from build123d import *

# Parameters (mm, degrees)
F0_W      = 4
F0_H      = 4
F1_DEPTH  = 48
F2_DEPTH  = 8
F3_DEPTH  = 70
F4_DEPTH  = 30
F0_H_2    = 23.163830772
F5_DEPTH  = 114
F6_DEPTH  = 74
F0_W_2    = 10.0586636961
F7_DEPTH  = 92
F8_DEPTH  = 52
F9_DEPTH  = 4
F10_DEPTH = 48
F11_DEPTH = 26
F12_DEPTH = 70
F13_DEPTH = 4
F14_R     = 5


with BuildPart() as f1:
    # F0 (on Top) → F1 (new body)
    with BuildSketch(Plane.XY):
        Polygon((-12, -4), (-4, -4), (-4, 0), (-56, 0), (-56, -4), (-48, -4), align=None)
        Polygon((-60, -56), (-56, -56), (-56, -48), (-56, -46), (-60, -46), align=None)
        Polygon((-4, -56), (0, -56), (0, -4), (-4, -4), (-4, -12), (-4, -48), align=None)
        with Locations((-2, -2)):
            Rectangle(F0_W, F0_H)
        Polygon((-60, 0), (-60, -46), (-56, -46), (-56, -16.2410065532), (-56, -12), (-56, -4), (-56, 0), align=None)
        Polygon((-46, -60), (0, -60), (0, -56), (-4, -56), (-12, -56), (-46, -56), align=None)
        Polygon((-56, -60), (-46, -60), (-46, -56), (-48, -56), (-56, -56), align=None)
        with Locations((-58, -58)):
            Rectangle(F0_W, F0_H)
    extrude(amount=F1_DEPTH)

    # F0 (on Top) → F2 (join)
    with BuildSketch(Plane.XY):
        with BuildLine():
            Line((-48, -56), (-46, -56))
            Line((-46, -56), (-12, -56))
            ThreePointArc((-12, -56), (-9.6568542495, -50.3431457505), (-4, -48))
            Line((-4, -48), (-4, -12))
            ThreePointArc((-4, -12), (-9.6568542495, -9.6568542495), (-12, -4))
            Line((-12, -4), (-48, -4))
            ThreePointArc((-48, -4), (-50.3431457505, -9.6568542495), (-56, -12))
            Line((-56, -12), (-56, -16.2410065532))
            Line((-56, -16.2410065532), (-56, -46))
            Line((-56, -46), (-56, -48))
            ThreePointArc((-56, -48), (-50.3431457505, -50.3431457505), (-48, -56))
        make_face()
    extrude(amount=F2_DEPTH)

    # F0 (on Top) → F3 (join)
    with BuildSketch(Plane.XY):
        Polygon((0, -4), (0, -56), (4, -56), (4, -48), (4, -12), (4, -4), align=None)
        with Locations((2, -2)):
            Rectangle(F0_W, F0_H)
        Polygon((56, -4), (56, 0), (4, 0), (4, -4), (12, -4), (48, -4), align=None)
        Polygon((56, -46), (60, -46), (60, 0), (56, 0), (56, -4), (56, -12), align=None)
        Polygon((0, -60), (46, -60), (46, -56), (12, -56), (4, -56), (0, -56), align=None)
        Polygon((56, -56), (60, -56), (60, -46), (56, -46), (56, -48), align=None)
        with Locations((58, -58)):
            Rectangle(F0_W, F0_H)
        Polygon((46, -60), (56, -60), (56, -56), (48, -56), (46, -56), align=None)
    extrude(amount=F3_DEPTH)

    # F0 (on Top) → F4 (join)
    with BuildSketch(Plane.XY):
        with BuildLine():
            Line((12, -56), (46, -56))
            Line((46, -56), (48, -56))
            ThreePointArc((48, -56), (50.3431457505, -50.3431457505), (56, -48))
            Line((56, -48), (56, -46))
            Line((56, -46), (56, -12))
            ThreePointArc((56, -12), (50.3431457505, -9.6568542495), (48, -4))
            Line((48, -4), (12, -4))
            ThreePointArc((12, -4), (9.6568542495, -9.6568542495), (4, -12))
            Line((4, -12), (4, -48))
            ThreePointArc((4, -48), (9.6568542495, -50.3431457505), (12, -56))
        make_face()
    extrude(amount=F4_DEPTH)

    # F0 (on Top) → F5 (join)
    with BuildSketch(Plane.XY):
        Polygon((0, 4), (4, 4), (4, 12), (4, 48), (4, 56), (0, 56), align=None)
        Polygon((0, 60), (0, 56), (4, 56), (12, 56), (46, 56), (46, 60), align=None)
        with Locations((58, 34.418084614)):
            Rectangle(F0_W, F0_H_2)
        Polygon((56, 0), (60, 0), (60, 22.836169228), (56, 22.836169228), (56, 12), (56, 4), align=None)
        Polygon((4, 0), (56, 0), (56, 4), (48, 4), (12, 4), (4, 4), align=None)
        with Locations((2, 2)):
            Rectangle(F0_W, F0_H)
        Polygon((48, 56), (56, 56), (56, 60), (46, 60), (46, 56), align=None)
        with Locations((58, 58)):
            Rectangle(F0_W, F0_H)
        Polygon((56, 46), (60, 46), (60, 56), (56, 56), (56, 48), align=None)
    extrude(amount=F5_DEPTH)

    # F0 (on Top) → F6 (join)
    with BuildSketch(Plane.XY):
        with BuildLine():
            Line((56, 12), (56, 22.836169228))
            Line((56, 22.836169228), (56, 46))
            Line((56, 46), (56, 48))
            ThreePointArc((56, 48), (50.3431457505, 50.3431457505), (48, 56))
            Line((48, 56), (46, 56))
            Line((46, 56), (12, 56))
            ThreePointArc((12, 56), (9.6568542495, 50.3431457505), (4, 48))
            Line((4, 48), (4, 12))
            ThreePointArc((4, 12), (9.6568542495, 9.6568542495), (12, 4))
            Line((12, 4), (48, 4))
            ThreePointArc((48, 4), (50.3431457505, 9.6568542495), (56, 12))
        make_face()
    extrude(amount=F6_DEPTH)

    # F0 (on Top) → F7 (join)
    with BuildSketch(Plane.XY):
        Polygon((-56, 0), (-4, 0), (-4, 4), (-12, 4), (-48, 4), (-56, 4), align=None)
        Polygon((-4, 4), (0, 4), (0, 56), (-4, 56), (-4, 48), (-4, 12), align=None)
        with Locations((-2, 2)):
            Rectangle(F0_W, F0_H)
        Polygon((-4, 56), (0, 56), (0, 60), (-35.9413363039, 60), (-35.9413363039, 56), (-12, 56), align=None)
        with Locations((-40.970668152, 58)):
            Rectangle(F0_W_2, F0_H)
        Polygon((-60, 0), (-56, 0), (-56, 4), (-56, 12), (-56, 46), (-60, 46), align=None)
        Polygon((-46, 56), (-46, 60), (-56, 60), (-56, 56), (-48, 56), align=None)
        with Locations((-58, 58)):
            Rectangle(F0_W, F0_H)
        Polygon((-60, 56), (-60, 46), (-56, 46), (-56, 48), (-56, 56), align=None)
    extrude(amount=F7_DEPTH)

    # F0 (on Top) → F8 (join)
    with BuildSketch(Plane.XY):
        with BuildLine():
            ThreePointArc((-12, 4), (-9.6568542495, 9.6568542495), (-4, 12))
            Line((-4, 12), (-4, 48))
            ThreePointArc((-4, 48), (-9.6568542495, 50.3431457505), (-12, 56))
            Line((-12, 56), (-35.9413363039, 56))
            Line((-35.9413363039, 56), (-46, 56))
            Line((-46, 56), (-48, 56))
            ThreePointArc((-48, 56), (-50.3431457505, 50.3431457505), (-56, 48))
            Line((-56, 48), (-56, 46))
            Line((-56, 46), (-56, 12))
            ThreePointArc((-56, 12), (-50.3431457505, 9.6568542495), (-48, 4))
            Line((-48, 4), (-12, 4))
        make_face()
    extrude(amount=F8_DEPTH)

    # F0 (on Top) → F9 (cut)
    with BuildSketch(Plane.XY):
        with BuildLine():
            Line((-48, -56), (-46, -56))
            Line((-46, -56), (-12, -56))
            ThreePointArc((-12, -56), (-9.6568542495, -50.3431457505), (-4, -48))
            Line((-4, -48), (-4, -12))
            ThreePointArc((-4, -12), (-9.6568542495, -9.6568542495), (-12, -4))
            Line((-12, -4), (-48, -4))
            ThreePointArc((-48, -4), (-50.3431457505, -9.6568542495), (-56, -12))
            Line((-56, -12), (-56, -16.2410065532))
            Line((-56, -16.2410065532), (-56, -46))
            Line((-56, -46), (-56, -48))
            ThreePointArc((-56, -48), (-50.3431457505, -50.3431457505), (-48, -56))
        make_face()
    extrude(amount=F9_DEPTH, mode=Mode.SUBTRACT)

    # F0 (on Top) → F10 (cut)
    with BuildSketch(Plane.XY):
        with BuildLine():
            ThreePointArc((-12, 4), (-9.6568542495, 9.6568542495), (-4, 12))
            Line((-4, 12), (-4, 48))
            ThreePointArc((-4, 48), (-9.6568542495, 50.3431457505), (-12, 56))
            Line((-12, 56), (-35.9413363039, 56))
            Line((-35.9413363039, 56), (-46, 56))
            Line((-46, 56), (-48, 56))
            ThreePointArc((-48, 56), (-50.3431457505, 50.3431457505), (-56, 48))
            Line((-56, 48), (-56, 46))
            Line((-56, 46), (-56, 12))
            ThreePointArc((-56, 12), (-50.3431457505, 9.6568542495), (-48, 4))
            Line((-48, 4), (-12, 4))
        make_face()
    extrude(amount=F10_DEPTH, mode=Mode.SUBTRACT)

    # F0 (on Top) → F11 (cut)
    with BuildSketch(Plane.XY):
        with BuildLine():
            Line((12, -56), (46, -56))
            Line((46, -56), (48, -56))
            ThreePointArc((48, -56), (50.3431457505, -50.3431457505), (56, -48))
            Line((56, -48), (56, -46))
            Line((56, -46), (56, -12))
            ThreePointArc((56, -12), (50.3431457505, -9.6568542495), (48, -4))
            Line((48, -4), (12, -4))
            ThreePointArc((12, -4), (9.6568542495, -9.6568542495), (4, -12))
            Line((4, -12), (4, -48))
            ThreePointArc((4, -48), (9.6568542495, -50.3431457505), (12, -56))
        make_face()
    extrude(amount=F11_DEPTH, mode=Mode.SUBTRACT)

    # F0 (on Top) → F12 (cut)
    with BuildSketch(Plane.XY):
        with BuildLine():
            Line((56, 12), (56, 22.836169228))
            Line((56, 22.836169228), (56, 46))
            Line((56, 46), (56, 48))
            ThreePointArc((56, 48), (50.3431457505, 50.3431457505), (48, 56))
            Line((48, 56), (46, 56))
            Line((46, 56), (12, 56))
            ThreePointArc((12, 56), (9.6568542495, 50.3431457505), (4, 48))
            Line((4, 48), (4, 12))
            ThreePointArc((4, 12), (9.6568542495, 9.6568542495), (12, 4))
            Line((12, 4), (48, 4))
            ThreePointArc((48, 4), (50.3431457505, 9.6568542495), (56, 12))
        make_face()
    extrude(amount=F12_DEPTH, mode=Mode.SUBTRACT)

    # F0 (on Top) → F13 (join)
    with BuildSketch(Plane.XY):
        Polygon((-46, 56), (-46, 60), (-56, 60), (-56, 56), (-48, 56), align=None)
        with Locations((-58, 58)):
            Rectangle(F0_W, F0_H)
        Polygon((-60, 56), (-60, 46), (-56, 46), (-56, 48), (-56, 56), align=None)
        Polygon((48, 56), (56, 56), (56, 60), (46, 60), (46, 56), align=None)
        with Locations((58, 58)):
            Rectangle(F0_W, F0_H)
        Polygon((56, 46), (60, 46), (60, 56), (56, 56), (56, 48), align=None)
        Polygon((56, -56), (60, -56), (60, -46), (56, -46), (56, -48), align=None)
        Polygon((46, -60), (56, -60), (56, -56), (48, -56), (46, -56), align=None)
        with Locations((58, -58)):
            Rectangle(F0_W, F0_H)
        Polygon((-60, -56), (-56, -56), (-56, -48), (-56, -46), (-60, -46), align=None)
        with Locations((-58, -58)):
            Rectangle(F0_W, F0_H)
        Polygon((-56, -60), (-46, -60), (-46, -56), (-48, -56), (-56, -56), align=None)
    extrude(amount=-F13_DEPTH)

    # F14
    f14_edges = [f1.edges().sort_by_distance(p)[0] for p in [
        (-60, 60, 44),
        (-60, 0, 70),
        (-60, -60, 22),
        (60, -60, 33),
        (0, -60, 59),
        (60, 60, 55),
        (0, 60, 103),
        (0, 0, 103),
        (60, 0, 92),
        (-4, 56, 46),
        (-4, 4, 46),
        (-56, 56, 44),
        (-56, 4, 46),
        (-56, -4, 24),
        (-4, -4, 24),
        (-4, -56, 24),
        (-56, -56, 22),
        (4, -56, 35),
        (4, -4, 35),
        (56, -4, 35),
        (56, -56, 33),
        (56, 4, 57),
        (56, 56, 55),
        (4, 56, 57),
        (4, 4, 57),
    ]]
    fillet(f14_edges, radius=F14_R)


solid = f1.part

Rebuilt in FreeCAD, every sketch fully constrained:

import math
import FreeCAD as App
import Part
import Sketcher


def edges_at(feature, points):
    """Names of the edges that pass closest to the given points."""
    edges = feature.Shape.Edges
    near = lambda p: min(range(len(edges)), key=lambda i: edges[i].distToShape(Part.Vertex(*p))[0])
    return sorted({f"Edge{near(p) + 1}" for p in points})

doc = App.newDocument("Part")
body = doc.addObject("PartDesign::Body", "Body")

sketch1 = body.newObject("Sketcher::SketchObject", "Sketch")
sketch1.AttachmentSupport = (doc.getObject("XY_Plane"), [""])
sketch1.MapMode = "FlatFace"
sketch1.addGeometry([
    Part.LineSegment(App.Vector(-60, 0, 0), App.Vector(-60, -60, 0)),
    Part.LineSegment(App.Vector(-60, -60, 0), App.Vector(0, -60, 0)),
    Part.LineSegment(App.Vector(0, -60, 0), App.Vector(0, 0, 0)),
    Part.LineSegment(App.Vector(0, 0, 0), App.Vector(-60, 0, 0)),
    Part.LineSegment(App.Vector(-4, -56, 0), App.Vector(-56, -56, 0)),
    Part.LineSegment(App.Vector(-56, -56, 0), App.Vector(-56, -4, 0)),
    Part.LineSegment(App.Vector(-56, -4, 0), App.Vector(-4, -4, 0)),
    Part.LineSegment(App.Vector(-4, -4, 0), App.Vector(-4, -56, 0)),
], False)
sketch1.addConstraint([
    Sketcher.Constraint("Coincident", 0, 2, 1, 1),
    Sketcher.Constraint("Coincident", 1, 2, 2, 1),
    Sketcher.Constraint("Coincident", 2, 2, 3, 1),
    Sketcher.Constraint("Coincident", 3, 2, 0, 1),
    Sketcher.Constraint("Coincident", 4, 2, 5, 1),
    Sketcher.Constraint("Coincident", 5, 2, 6, 1),
    Sketcher.Constraint("Coincident", 6, 2, 7, 1),
    Sketcher.Constraint("Coincident", 7, 2, 4, 1),
    Sketcher.Constraint("Vertical", 0),
    Sketcher.Constraint("Horizontal", 1),
    Sketcher.Constraint("Vertical", 2),
    Sketcher.Constraint("Horizontal", 3),
    Sketcher.Constraint("Horizontal", 4),
    Sketcher.Constraint("Vertical", 5),
    Sketcher.Constraint("Horizontal", 6),
    Sketcher.Constraint("Vertical", 7),
    Sketcher.Constraint("Coincident", 2, 2, -1, 1),
    Sketcher.Constraint("Equal", 3, 0),
    Sketcher.Constraint("Equal", 6, 5),
    Sketcher.Constraint("DistanceX", 1, 1, 1, 2, 60.0),
    Sketcher.Constraint("DistanceX", 4, 2, 4, 1, 52.0),
    Sketcher.Constraint("DistanceX", 4, 2, -1, 1, 56.0),
    Sketcher.Constraint("DistanceY", 4, 2, -1, 1, 56.0),
])
pad1 = body.newObject("PartDesign::Pad", "Pad")
pad1.Profile = sketch1
pad1.Length = 48

sketch2 = body.newObject("Sketcher::SketchObject", "Sketch001")
sketch2.AttachmentSupport = (doc.getObject("XY_Plane"), [""])
sketch2.MapMode = "FlatFace"
sketch2.addGeometry([
    Part.LineSegment(App.Vector(-48, -56, 0), App.Vector(-12, -56, 0)),
    Part.ArcOfCircle(Part.Circle(App.Vector(-4, -56, 0), App.Vector(0, 0, 1), 8), math.radians(90), math.radians(180)),
    Part.LineSegment(App.Vector(-4, -48, 0), App.Vector(-4, -12, 0)),
    Part.ArcOfCircle(Part.Circle(App.Vector(-4, -4, 0), App.Vector(0, 0, 1), 8), math.radians(180), math.radians(270)),
    Part.LineSegment(App.Vector(-12, -4, 0), App.Vector(-48, -4, 0)),
    Part.ArcOfCircle(Part.Circle(App.Vector(-56, -4, 0), App.Vector(0, 0, 1), 8), math.radians(-90), math.radians(0)),
    Part.LineSegment(App.Vector(-56, -12, 0), App.Vector(-56, -48, 0)),
    Part.ArcOfCircle(Part.Circle(App.Vector(-56, -56, 0), App.Vector(0, 0, 1), 8), math.radians(0), math.radians(90)),
], False)
sketch2.addConstraint([
    Sketcher.Constraint("Coincident", 0, 2, 1, 2),
    Sketcher.Constraint("Coincident", 1, 1, 2, 1),
    Sketcher.Constraint("Coincident", 2, 2, 3, 2),
    Sketcher.Constraint("Coincident", 3, 1, 4, 1),
    Sketcher.Constraint("Coincident", 4, 2, 5, 2),
    Sketcher.Constraint("Coincident", 5, 1, 6, 1),
    Sketcher.Constraint("Coincident", 6, 2, 7, 2),
    Sketcher.Constraint("Coincident", 7, 1, 0, 1),
    Sketcher.Constraint("Horizontal", 0),
    Sketcher.Constraint("Vertical", 2),
    Sketcher.Constraint("Horizontal", 4),
    Sketcher.Constraint("Vertical", 6),
    Sketcher.Constraint("Equal", 1, 3),
    Sketcher.Constraint("Equal", 3, 5),
    Sketcher.Constraint("Equal", 5, 7),
    Sketcher.Constraint("Horizontal", 3, 3, 5, 3),
    Sketcher.Constraint("Horizontal", 1, 3, 7, 3),
    Sketcher.Constraint("Horizontal", 7, 3, 0, 2),
    Sketcher.Constraint("Horizontal", 5, 3, 3, 1),
    Sketcher.Constraint("Vertical", 1, 3, 3, 3),
    Sketcher.Constraint("Vertical", 5, 3, 7, 3),
    Sketcher.Constraint("Vertical", 3, 3, 1, 1),
    Sketcher.Constraint("Vertical", 7, 3, 5, 1),
    Sketcher.Constraint("Equal", 4, 2),
    Sketcher.Constraint("Radius", 1, 8.0),
    Sketcher.Constraint("DistanceX", 0, 1, 0, 2, 36.0),
    Sketcher.Constraint("DistanceX", 1, 3, -1, 1, 4.0),
    Sketcher.Constraint("DistanceY", 1, 3, -1, 1, 56.0),
])
pad2 = body.newObject("PartDesign::Pad", "Pad001")
pad2.Profile = sketch2
pad2.Length = 8

sketch3 = body.newObject("Sketcher::SketchObject", "Sketch002")
sketch3.AttachmentSupport = (doc.getObject("XY_Plane"), [""])
sketch3.MapMode = "FlatFace"
sketch3.addGeometry([
    Part.LineSegment(App.Vector(60, -60, 0), App.Vector(60, 0, 0)),
    Part.LineSegment(App.Vector(60, 0, 0), App.Vector(0, 0, 0)),
    Part.LineSegment(App.Vector(0, 0, 0), App.Vector(0, -60, 0)),
    Part.LineSegment(App.Vector(0, -60, 0), App.Vector(60, -60, 0)),
    Part.LineSegment(App.Vector(4, -56, 0), App.Vector(4, -4, 0)),
    Part.LineSegment(App.Vector(4, -4, 0), App.Vector(56, -4, 0)),
    Part.LineSegment(App.Vector(56, -4, 0), App.Vector(56, -56, 0)),
    Part.LineSegment(App.Vector(56, -56, 0), App.Vector(4, -56, 0)),
], False)
sketch3.addConstraint([
    Sketcher.Constraint("Coincident", 0, 2, 1, 1),
    Sketcher.Constraint("Coincident", 1, 2, 2, 1),
    Sketcher.Constraint("Coincident", 2, 2, 3, 1),
    Sketcher.Constraint("Coincident", 3, 2, 0, 1),
    Sketcher.Constraint("Coincident", 4, 2, 5, 1),
    Sketcher.Constraint("Coincident", 5, 2, 6, 1),
    Sketcher.Constraint("Coincident", 6, 2, 7, 1),
    Sketcher.Constraint("Coincident", 7, 2, 4, 1),
    Sketcher.Constraint("Vertical", 0),
    Sketcher.Constraint("Horizontal", 1),
    Sketcher.Constraint("Vertical", 2),
    Sketcher.Constraint("Horizontal", 3),
    Sketcher.Constraint("Vertical", 4),
    Sketcher.Constraint("Horizontal", 5),
    Sketcher.Constraint("Vertical", 6),
    Sketcher.Constraint("Horizontal", 7),
    Sketcher.Constraint("Coincident", 1, 2, -1, 1),
    Sketcher.Constraint("Equal", 3, 0),
    Sketcher.Constraint("Equal", 7, 4),
    Sketcher.Constraint("DistanceX", 1, 2, 1, 1, 60.0),
    Sketcher.Constraint("DistanceX", 5, 1, 5, 2, 52.0),
    Sketcher.Constraint("DistanceX", -1, 1, 4, 2, 4.0),
    Sketcher.Constraint("DistanceY", 4, 2, -1, 1, 4.0),
])
pad3 = body.newObject("PartDesign::Pad", "Pad002")
pad3.Profile = sketch3
pad3.Length = 70

sketch4 = body.newObject("Sketcher::SketchObject", "Sketch003")
sketch4.AttachmentSupport = (doc.getObject("XY_Plane"), [""])
sketch4.MapMode = "FlatFace"
sketch4.addGeometry([
    Part.LineSegment(App.Vector(12, -56, 0), App.Vector(48, -56, 0)),
    Part.ArcOfCircle(Part.Circle(App.Vector(56, -56, 0), App.Vector(0, 0, 1), 8), math.radians(90), math.radians(180)),
    Part.LineSegment(App.Vector(56, -48, 0), App.Vector(56, -12, 0)),
    Part.ArcOfCircle(Part.Circle(App.Vector(56, -4, 0), App.Vector(0, 0, 1), 8), math.radians(180), math.radians(270)),
    Part.LineSegment(App.Vector(48, -4, 0), App.Vector(12, -4, 0)),
    Part.ArcOfCircle(Part.Circle(App.Vector(4, -4, 0), App.Vector(0, 0, 1), 8), math.radians(-90), math.radians(0)),
    Part.LineSegment(App.Vector(4, -12, 0), App.Vector(4, -48, 0)),
    Part.ArcOfCircle(Part.Circle(App.Vector(4, -56, 0), App.Vector(0, 0, 1), 8), math.radians(0), math.radians(90)),
], False)
sketch4.addConstraint([
    Sketcher.Constraint("Coincident", 0, 2, 1, 2),
    Sketcher.Constraint("Coincident", 1, 1, 2, 1),
    Sketcher.Constraint("Coincident", 2, 2, 3, 2),
    Sketcher.Constraint("Coincident", 3, 1, 4, 1),
    Sketcher.Constraint("Coincident", 4, 2, 5, 2),
    Sketcher.Constraint("Coincident", 5, 1, 6, 1),
    Sketcher.Constraint("Coincident", 6, 2, 7, 2),
    Sketcher.Constraint("Coincident", 7, 1, 0, 1),
    Sketcher.Constraint("Horizontal", 0),
    Sketcher.Constraint("Vertical", 2),
    Sketcher.Constraint("Horizontal", 4),
    Sketcher.Constraint("Vertical", 6),
    Sketcher.Constraint("Equal", 1, 3),
    Sketcher.Constraint("Equal", 3, 5),
    Sketcher.Constraint("Equal", 5, 7),
    Sketcher.Constraint("Horizontal", 3, 3, 5, 3),
    Sketcher.Constraint("Horizontal", 1, 3, 7, 3),
    Sketcher.Constraint("Horizontal", 7, 3, 0, 2),
    Sketcher.Constraint("Horizontal", 5, 3, 3, 1),
    Sketcher.Constraint("Vertical", 1, 3, 3, 3),
    Sketcher.Constraint("Vertical", 5, 3, 7, 3),
    Sketcher.Constraint("Vertical", 3, 3, 1, 1),
    Sketcher.Constraint("Vertical", 7, 3, 5, 1),
    Sketcher.Constraint("Equal", 4, 2),
    Sketcher.Constraint("Radius", 1, 8.0),
    Sketcher.Constraint("DistanceX", 0, 1, 0, 2, 36.0),
    Sketcher.Constraint("DistanceX", -1, 1, 1, 3, 56.0),
    Sketcher.Constraint("DistanceY", 1, 3, -1, 1, 56.0),
])
pad4 = body.newObject("PartDesign::Pad", "Pad003")
pad4.Profile = sketch4
pad4.Length = 30

sketch5 = body.newObject("Sketcher::SketchObject", "Sketch004")
sketch5.AttachmentSupport = (doc.getObject("XY_Plane"), [""])
sketch5.MapMode = "FlatFace"
sketch5.addGeometry([
    Part.LineSegment(App.Vector(60, 60, 0), App.Vector(0, 60, 0)),
    Part.LineSegment(App.Vector(0, 60, 0), App.Vector(0, 0, 0)),
    Part.LineSegment(App.Vector(0, 0, 0), App.Vector(60, 0, 0)),
    Part.LineSegment(App.Vector(60, 0, 0), App.Vector(60, 60, 0)),
    Part.LineSegment(App.Vector(4, 4, 0), App.Vector(4, 56, 0)),
    Part.LineSegment(App.Vector(4, 56, 0), App.Vector(56, 56, 0)),
    Part.LineSegment(App.Vector(56, 56, 0), App.Vector(56, 4, 0)),
    Part.LineSegment(App.Vector(56, 4, 0), App.Vector(4, 4, 0)),
], False)
sketch5.addConstraint([
    Sketcher.Constraint("Coincident", 0, 2, 1, 1),
    Sketcher.Constraint("Coincident", 1, 2, 2, 1),
    Sketcher.Constraint("Coincident", 2, 2, 3, 1),
    Sketcher.Constraint("Coincident", 3, 2, 0, 1),
    Sketcher.Constraint("Coincident", 4, 2, 5, 1),
    Sketcher.Constraint("Coincident", 5, 2, 6, 1),
    Sketcher.Constraint("Coincident", 6, 2, 7, 1),
    Sketcher.Constraint("Coincident", 7, 2, 4, 1),
    Sketcher.Constraint("Horizontal", 0),
    Sketcher.Constraint("Vertical", 1),
    Sketcher.Constraint("Horizontal", 2),
    Sketcher.Constraint("Vertical", 3),
    Sketcher.Constraint("Vertical", 4),
    Sketcher.Constraint("Horizontal", 5),
    Sketcher.Constraint("Vertical", 6),
    Sketcher.Constraint("Horizontal", 7),
    Sketcher.Constraint("Coincident", 1, 2, -1, 1),
    Sketcher.Constraint("Equal", 2, 1),
    Sketcher.Constraint("Equal", 7, 4),
    Sketcher.Constraint("DistanceX", 0, 2, 0, 1, 60.0),
    Sketcher.Constraint("DistanceX", 5, 1, 5, 2, 52.0),
    Sketcher.Constraint("DistanceX", -1, 1, 4, 2, 4.0),
    Sketcher.Constraint("DistanceY", -1, 1, 4, 2, 56.0),
])
pad5 = body.newObject("PartDesign::Pad", "Pad004")
pad5.Profile = sketch5
pad5.Length = 114

sketch6 = body.newObject("Sketcher::SketchObject", "Sketch005")
sketch6.AttachmentSupport = (doc.getObject("XY_Plane"), [""])
sketch6.MapMode = "FlatFace"
sketch6.addGeometry([
    Part.LineSegment(App.Vector(56, 12, 0), App.Vector(56, 48, 0)),
    Part.ArcOfCircle(Part.Circle(App.Vector(56, 56, 0), App.Vector(0, 0, 1), 8), math.radians(180), math.radians(270)),
    Part.LineSegment(App.Vector(48, 56, 0), App.Vector(12, 56, 0)),
    Part.ArcOfCircle(Part.Circle(App.Vector(4, 56, 0), App.Vector(0, 0, 1), 8), math.radians(-90), math.radians(0)),
    Part.LineSegment(App.Vector(4, 48, 0), App.Vector(4, 12, 0)),
    Part.ArcOfCircle(Part.Circle(App.Vector(4, 4, 0), App.Vector(0, 0, 1), 8), math.radians(0), math.radians(90)),
    Part.LineSegment(App.Vector(12, 4, 0), App.Vector(48, 4, 0)),
    Part.ArcOfCircle(Part.Circle(App.Vector(56, 4, 0), App.Vector(0, 0, 1), 8), math.radians(90), math.radians(180)),
], False)
sketch6.addConstraint([
    Sketcher.Constraint("Coincident", 0, 2, 1, 2),
    Sketcher.Constraint("Coincident", 1, 1, 2, 1),
    Sketcher.Constraint("Coincident", 2, 2, 3, 2),
    Sketcher.Constraint("Coincident", 3, 1, 4, 1),
    Sketcher.Constraint("Coincident", 4, 2, 5, 2),
    Sketcher.Constraint("Coincident", 5, 1, 6, 1),
    Sketcher.Constraint("Coincident", 6, 2, 7, 2),
    Sketcher.Constraint("Coincident", 7, 1, 0, 1),
    Sketcher.Constraint("Vertical", 0),
    Sketcher.Constraint("Horizontal", 2),
    Sketcher.Constraint("Vertical", 4),
    Sketcher.Constraint("Horizontal", 6),
    Sketcher.Constraint("Equal", 1, 3),
    Sketcher.Constraint("Equal", 3, 5),
    Sketcher.Constraint("Equal", 5, 7),
    Sketcher.Constraint("Horizontal", 1, 3, 3, 3),
    Sketcher.Constraint("Horizontal", 5, 3, 7, 3),
    Sketcher.Constraint("Horizontal", 3, 3, 1, 1),
    Sketcher.Constraint("Horizontal", 7, 3, 5, 1),
    Sketcher.Constraint("Vertical", 3, 3, 5, 3),
    Sketcher.Constraint("Vertical", 1, 3, 7, 3),
    Sketcher.Constraint("Vertical", 7, 3, 0, 2),
    Sketcher.Constraint("Vertical", 5, 3, 3, 1),
    Sketcher.Constraint("Equal", 6, 0),
    Sketcher.Constraint("Radius", 1, 8.0),
    Sketcher.Constraint("DistanceX", 2, 2, 2, 1, 36.0),
    Sketcher.Constraint("DistanceX", -1, 1, 1, 3, 56.0),
    Sketcher.Constraint("DistanceY", -1, 1, 1, 3, 56.0),
])
pad6 = body.newObject("PartDesign::Pad", "Pad005")
pad6.Profile = sketch6
pad6.Length = 74

sketch7 = body.newObject("Sketcher::SketchObject", "Sketch006")
sketch7.AttachmentSupport = (doc.getObject("XY_Plane"), [""])
sketch7.MapMode = "FlatFace"
sketch7.addGeometry([
    Part.LineSegment(App.Vector(0, 0, 0), App.Vector(0, 60, 0)),
    Part.LineSegment(App.Vector(0, 60, 0), App.Vector(-60, 60, 0)),
    Part.LineSegment(App.Vector(-60, 60, 0), App.Vector(-60, 0, 0)),
    Part.LineSegment(App.Vector(-60, 0, 0), App.Vector(0, 0, 0)),
    Part.LineSegment(App.Vector(-56, 56, 0), App.Vector(-4, 56, 0)),
    Part.LineSegment(App.Vector(-4, 56, 0), App.Vector(-4, 4, 0)),
    Part.LineSegment(App.Vector(-4, 4, 0), App.Vector(-56, 4, 0)),
    Part.LineSegment(App.Vector(-56, 4, 0), App.Vector(-56, 56, 0)),
], False)
sketch7.addConstraint([
    Sketcher.Constraint("Coincident", 0, 2, 1, 1),
    Sketcher.Constraint("Coincident", 1, 2, 2, 1),
    Sketcher.Constraint("Coincident", 2, 2, 3, 1),
    Sketcher.Constraint("Coincident", 3, 2, 0, 1),
    Sketcher.Constraint("Coincident", 4, 2, 5, 1),
    Sketcher.Constraint("Coincident", 5, 2, 6, 1),
    Sketcher.Constraint("Coincident", 6, 2, 7, 1),
    Sketcher.Constraint("Coincident", 7, 2, 4, 1),
    Sketcher.Constraint("Vertical", 0),
    Sketcher.Constraint("Horizontal", 1),
    Sketcher.Constraint("Vertical", 2),
    Sketcher.Constraint("Horizontal", 3),
    Sketcher.Constraint("Horizontal", 4),
    Sketcher.Constraint("Vertical", 5),
    Sketcher.Constraint("Horizontal", 6),
    Sketcher.Constraint("Vertical", 7),
    Sketcher.Constraint("Coincident", 3, 2, -1, 1),
    Sketcher.Constraint("Equal", 3, 0),
    Sketcher.Constraint("Equal", 6, 5),
    Sketcher.Constraint("DistanceX", 1, 2, 1, 1, 60.0),
    Sketcher.Constraint("DistanceX", 4, 1, 4, 2, 52.0),
    Sketcher.Constraint("DistanceX", 4, 2, -1, 1, 4.0),
    Sketcher.Constraint("DistanceY", -1, 1, 4, 2, 56.0),
])
pad7 = body.newObject("PartDesign::Pad", "Pad006")
pad7.Profile = sketch7
pad7.Length = 92

sketch8 = body.newObject("Sketcher::SketchObject", "Sketch007")
sketch8.AttachmentSupport = (doc.getObject("XY_Plane"), [""])
sketch8.MapMode = "FlatFace"
sketch8.addGeometry([
    Part.ArcOfCircle(Part.Circle(App.Vector(-4, 4, 0), App.Vector(0, 0, 1), 8), math.radians(90), math.radians(180)),
    Part.LineSegment(App.Vector(-4, 12, 0), App.Vector(-4, 48, 0)),
    Part.ArcOfCircle(Part.Circle(App.Vector(-4, 56, 0), App.Vector(0, 0, 1), 8), math.radians(180), math.radians(270)),
    Part.LineSegment(App.Vector(-12, 56, 0), App.Vector(-48, 56, 0)),
    Part.ArcOfCircle(Part.Circle(App.Vector(-56, 56, 0), App.Vector(0, 0, 1), 8), math.radians(-90), math.radians(0)),
    Part.LineSegment(App.Vector(-56, 48, 0), App.Vector(-56, 12, 0)),
    Part.ArcOfCircle(Part.Circle(App.Vector(-56, 4, 0), App.Vector(0, 0, 1), 8), math.radians(0), math.radians(90)),
    Part.LineSegment(App.Vector(-48, 4, 0), App.Vector(-12, 4, 0)),
], False)
sketch8.addConstraint([
    Sketcher.Constraint("Coincident", 0, 1, 1, 1),
    Sketcher.Constraint("Coincident", 1, 2, 2, 2),
    Sketcher.Constraint("Coincident", 2, 1, 3, 1),
    Sketcher.Constraint("Coincident", 3, 2, 4, 2),
    Sketcher.Constraint("Coincident", 4, 1, 5, 1),
    Sketcher.Constraint("Coincident", 5, 2, 6, 2),
    Sketcher.Constraint("Coincident", 6, 1, 7, 1),
    Sketcher.Constraint("Coincident", 7, 2, 0, 2),
    Sketcher.Constraint("Vertical", 1),
    Sketcher.Constraint("Horizontal", 3),
    Sketcher.Constraint("Vertical", 5),
    Sketcher.Constraint("Horizontal", 7),
    Sketcher.Constraint("Equal", 0, 2),
    Sketcher.Constraint("Equal", 2, 4),
    Sketcher.Constraint("Equal", 4, 6),
    Sketcher.Constraint("Horizontal", 2, 3, 4, 3),
    Sketcher.Constraint("Horizontal", 0, 3, 6, 3),
    Sketcher.Constraint("Horizontal", 4, 3, 2, 1),
    Sketcher.Constraint("Horizontal", 0, 3, 6, 1),
    Sketcher.Constraint("Vertical", 0, 3, 2, 3),
    Sketcher.Constraint("Vertical", 4, 3, 6, 3),
    Sketcher.Constraint("Vertical", 2, 3, 0, 1),
    Sketcher.Constraint("Vertical", 6, 3, 4, 1),
    Sketcher.Constraint("Equal", 7, 1),
    Sketcher.Constraint("Radius", 0, 8.0),
    Sketcher.Constraint("DistanceX", 3, 2, 3, 1, 36.0),
    Sketcher.Constraint("DistanceX", 0, 3, -1, 1, 4.0),
    Sketcher.Constraint("DistanceY", -1, 1, 0, 3, 4.0),
])
pad8 = body.newObject("PartDesign::Pad", "Pad007")
pad8.Profile = sketch8
pad8.Length = 52

sketch9 = body.newObject("Sketcher::SketchObject", "Sketch008")
sketch9.AttachmentSupport = (doc.getObject("XY_Plane"), [""])
sketch9.MapMode = "FlatFace"
sketch9.addGeometry([
    Part.LineSegment(App.Vector(-48, -56, 0), App.Vector(-12, -56, 0)),
    Part.ArcOfCircle(Part.Circle(App.Vector(-4, -56, 0), App.Vector(0, 0, 1), 8), math.radians(90), math.radians(180)),
    Part.LineSegment(App.Vector(-4, -48, 0), App.Vector(-4, -12, 0)),
    Part.ArcOfCircle(Part.Circle(App.Vector(-4, -4, 0), App.Vector(0, 0, 1), 8), math.radians(180), math.radians(270)),
    Part.LineSegment(App.Vector(-12, -4, 0), App.Vector(-48, -4, 0)),
    Part.ArcOfCircle(Part.Circle(App.Vector(-56, -4, 0), App.Vector(0, 0, 1), 8), math.radians(-90), math.radians(0)),
    Part.LineSegment(App.Vector(-56, -12, 0), App.Vector(-56, -48, 0)),
    Part.ArcOfCircle(Part.Circle(App.Vector(-56, -56, 0), App.Vector(0, 0, 1), 8), math.radians(0), math.radians(90)),
], False)
sketch9.addConstraint([
    Sketcher.Constraint("Coincident", 0, 2, 1, 2),
    Sketcher.Constraint("Coincident", 1, 1, 2, 1),
    Sketcher.Constraint("Coincident", 2, 2, 3, 2),
    Sketcher.Constraint("Coincident", 3, 1, 4, 1),
    Sketcher.Constraint("Coincident", 4, 2, 5, 2),
    Sketcher.Constraint("Coincident", 5, 1, 6, 1),
    Sketcher.Constraint("Coincident", 6, 2, 7, 2),
    Sketcher.Constraint("Coincident", 7, 1, 0, 1),
    Sketcher.Constraint("Horizontal", 0),
    Sketcher.Constraint("Vertical", 2),
    Sketcher.Constraint("Horizontal", 4),
    Sketcher.Constraint("Vertical", 6),
    Sketcher.Constraint("Equal", 1, 3),
    Sketcher.Constraint("Equal", 3, 5),
    Sketcher.Constraint("Equal", 5, 7),
    Sketcher.Constraint("Horizontal", 3, 3, 5, 3),
    Sketcher.Constraint("Horizontal", 1, 3, 7, 3),
    Sketcher.Constraint("Horizontal", 7, 3, 0, 2),
    Sketcher.Constraint("Horizontal", 5, 3, 3, 1),
    Sketcher.Constraint("Vertical", 1, 3, 3, 3),
    Sketcher.Constraint("Vertical", 5, 3, 7, 3),
    Sketcher.Constraint("Vertical", 3, 3, 1, 1),
    Sketcher.Constraint("Vertical", 7, 3, 5, 1),
    Sketcher.Constraint("Equal", 4, 2),
    Sketcher.Constraint("Radius", 1, 8.0),
    Sketcher.Constraint("DistanceX", 0, 1, 0, 2, 36.0),
    Sketcher.Constraint("DistanceX", 1, 3, -1, 1, 4.0),
    Sketcher.Constraint("DistanceY", 1, 3, -1, 1, 56.0),
])
pocket1 = body.newObject("PartDesign::Pocket", "Pocket")
pocket1.Profile = sketch9
pocket1.Length = 4
pocket1.Reversed = True

sketch10 = body.newObject("Sketcher::SketchObject", "Sketch009")
sketch10.AttachmentSupport = (doc.getObject("XY_Plane"), [""])
sketch10.MapMode = "FlatFace"
sketch10.addGeometry([
    Part.ArcOfCircle(Part.Circle(App.Vector(-4, 4, 0), App.Vector(0, 0, 1), 8), math.radians(90), math.radians(180)),
    Part.LineSegment(App.Vector(-4, 12, 0), App.Vector(-4, 48, 0)),
    Part.ArcOfCircle(Part.Circle(App.Vector(-4, 56, 0), App.Vector(0, 0, 1), 8), math.radians(180), math.radians(270)),
    Part.LineSegment(App.Vector(-12, 56, 0), App.Vector(-48, 56, 0)),
    Part.ArcOfCircle(Part.Circle(App.Vector(-56, 56, 0), App.Vector(0, 0, 1), 8), math.radians(-90), math.radians(0)),
    Part.LineSegment(App.Vector(-56, 48, 0), App.Vector(-56, 12, 0)),
    Part.ArcOfCircle(Part.Circle(App.Vector(-56, 4, 0), App.Vector(0, 0, 1), 8), math.radians(0), math.radians(90)),
    Part.LineSegment(App.Vector(-48, 4, 0), App.Vector(-12, 4, 0)),
], False)
sketch10.addConstraint([
    Sketcher.Constraint("Coincident", 0, 1, 1, 1),
    Sketcher.Constraint("Coincident", 1, 2, 2, 2),
    Sketcher.Constraint("Coincident", 2, 1, 3, 1),
    Sketcher.Constraint("Coincident", 3, 2, 4, 2),
    Sketcher.Constraint("Coincident", 4, 1, 5, 1),
    Sketcher.Constraint("Coincident", 5, 2, 6, 2),
    Sketcher.Constraint("Coincident", 6, 1, 7, 1),
    Sketcher.Constraint("Coincident", 7, 2, 0, 2),
    Sketcher.Constraint("Vertical", 1),
    Sketcher.Constraint("Horizontal", 3),
    Sketcher.Constraint("Vertical", 5),
    Sketcher.Constraint("Horizontal", 7),
    Sketcher.Constraint("Equal", 0, 2),
    Sketcher.Constraint("Equal", 2, 4),
    Sketcher.Constraint("Equal", 4, 6),
    Sketcher.Constraint("Horizontal", 2, 3, 4, 3),
    Sketcher.Constraint("Horizontal", 0, 3, 6, 3),
    Sketcher.Constraint("Horizontal", 4, 3, 2, 1),
    Sketcher.Constraint("Horizontal", 0, 3, 6, 1),
    Sketcher.Constraint("Vertical", 0, 3, 2, 3),
    Sketcher.Constraint("Vertical", 4, 3, 6, 3),
    Sketcher.Constraint("Vertical", 2, 3, 0, 1),
    Sketcher.Constraint("Vertical", 6, 3, 4, 1),
    Sketcher.Constraint("Equal", 7, 1),
    Sketcher.Constraint("Radius", 0, 8.0),
    Sketcher.Constraint("DistanceX", 3, 2, 3, 1, 36.0),
    Sketcher.Constraint("DistanceX", 0, 3, -1, 1, 4.0),
    Sketcher.Constraint("DistanceY", -1, 1, 0, 3, 4.0),
])
pocket2 = body.newObject("PartDesign::Pocket", "Pocket001")
pocket2.Profile = sketch10
pocket2.Length = 48
pocket2.Reversed = True

sketch11 = body.newObject("Sketcher::SketchObject", "Sketch010")
sketch11.AttachmentSupport = (doc.getObject("XY_Plane"), [""])
sketch11.MapMode = "FlatFace"
sketch11.addGeometry([
    Part.LineSegment(App.Vector(12, -56, 0), App.Vector(48, -56, 0)),
    Part.ArcOfCircle(Part.Circle(App.Vector(56, -56, 0), App.Vector(0, 0, 1), 8), math.radians(90), math.radians(180)),
    Part.LineSegment(App.Vector(56, -48, 0), App.Vector(56, -12, 0)),
    Part.ArcOfCircle(Part.Circle(App.Vector(56, -4, 0), App.Vector(0, 0, 1), 8), math.radians(180), math.radians(270)),
    Part.LineSegment(App.Vector(48, -4, 0), App.Vector(12, -4, 0)),
    Part.ArcOfCircle(Part.Circle(App.Vector(4, -4, 0), App.Vector(0, 0, 1), 8), math.radians(-90), math.radians(0)),
    Part.LineSegment(App.Vector(4, -12, 0), App.Vector(4, -48, 0)),
    Part.ArcOfCircle(Part.Circle(App.Vector(4, -56, 0), App.Vector(0, 0, 1), 8), math.radians(0), math.radians(90)),
], False)
sketch11.addConstraint([
    Sketcher.Constraint("Coincident", 0, 2, 1, 2),
    Sketcher.Constraint("Coincident", 1, 1, 2, 1),
    Sketcher.Constraint("Coincident", 2, 2, 3, 2),
    Sketcher.Constraint("Coincident", 3, 1, 4, 1),
    Sketcher.Constraint("Coincident", 4, 2, 5, 2),
    Sketcher.Constraint("Coincident", 5, 1, 6, 1),
    Sketcher.Constraint("Coincident", 6, 2, 7, 2),
    Sketcher.Constraint("Coincident", 7, 1, 0, 1),
    Sketcher.Constraint("Horizontal", 0),
    Sketcher.Constraint("Vertical", 2),
    Sketcher.Constraint("Horizontal", 4),
    Sketcher.Constraint("Vertical", 6),
    Sketcher.Constraint("Equal", 1, 3),
    Sketcher.Constraint("Equal", 3, 5),
    Sketcher.Constraint("Equal", 5, 7),
    Sketcher.Constraint("Horizontal", 3, 3, 5, 3),
    Sketcher.Constraint("Horizontal", 1, 3, 7, 3),
    Sketcher.Constraint("Horizontal", 7, 3, 0, 2),
    Sketcher.Constraint("Horizontal", 5, 3, 3, 1),
    Sketcher.Constraint("Vertical", 1, 3, 3, 3),
    Sketcher.Constraint("Vertical", 5, 3, 7, 3),
    Sketcher.Constraint("Vertical", 3, 3, 1, 1),
    Sketcher.Constraint("Vertical", 7, 3, 5, 1),
    Sketcher.Constraint("Equal", 4, 2),
    Sketcher.Constraint("Radius", 1, 8.0),
    Sketcher.Constraint("DistanceX", 0, 1, 0, 2, 36.0),
    Sketcher.Constraint("DistanceX", -1, 1, 1, 3, 56.0),
    Sketcher.Constraint("DistanceY", 1, 3, -1, 1, 56.0),
])
pocket3 = body.newObject("PartDesign::Pocket", "Pocket002")
pocket3.Profile = sketch11
pocket3.Length = 26
pocket3.Reversed = True

sketch12 = body.newObject("Sketcher::SketchObject", "Sketch011")
sketch12.AttachmentSupport = (doc.getObject("XY_Plane"), [""])
sketch12.MapMode = "FlatFace"
sketch12.addGeometry([
    Part.LineSegment(App.Vector(56, 12, 0), App.Vector(56, 48, 0)),
    Part.ArcOfCircle(Part.Circle(App.Vector(56, 56, 0), App.Vector(0, 0, 1), 8), math.radians(180), math.radians(270)),
    Part.LineSegment(App.Vector(48, 56, 0), App.Vector(12, 56, 0)),
    Part.ArcOfCircle(Part.Circle(App.Vector(4, 56, 0), App.Vector(0, 0, 1), 8), math.radians(-90), math.radians(0)),
    Part.LineSegment(App.Vector(4, 48, 0), App.Vector(4, 12, 0)),
    Part.ArcOfCircle(Part.Circle(App.Vector(4, 4, 0), App.Vector(0, 0, 1), 8), math.radians(0), math.radians(90)),
    Part.LineSegment(App.Vector(12, 4, 0), App.Vector(48, 4, 0)),
    Part.ArcOfCircle(Part.Circle(App.Vector(56, 4, 0), App.Vector(0, 0, 1), 8), math.radians(90), math.radians(180)),
], False)
sketch12.addConstraint([
    Sketcher.Constraint("Coincident", 0, 2, 1, 2),
    Sketcher.Constraint("Coincident", 1, 1, 2, 1),
    Sketcher.Constraint("Coincident", 2, 2, 3, 2),
    Sketcher.Constraint("Coincident", 3, 1, 4, 1),
    Sketcher.Constraint("Coincident", 4, 2, 5, 2),
    Sketcher.Constraint("Coincident", 5, 1, 6, 1),
    Sketcher.Constraint("Coincident", 6, 2, 7, 2),
    Sketcher.Constraint("Coincident", 7, 1, 0, 1),
    Sketcher.Constraint("Vertical", 0),
    Sketcher.Constraint("Horizontal", 2),
    Sketcher.Constraint("Vertical", 4),
    Sketcher.Constraint("Horizontal", 6),
    Sketcher.Constraint("Equal", 1, 3),
    Sketcher.Constraint("Equal", 3, 5),
    Sketcher.Constraint("Equal", 5, 7),
    Sketcher.Constraint("Horizontal", 1, 3, 3, 3),
    Sketcher.Constraint("Horizontal", 5, 3, 7, 3),
    Sketcher.Constraint("Horizontal", 3, 3, 1, 1),
    Sketcher.Constraint("Horizontal", 7, 3, 5, 1),
    Sketcher.Constraint("Vertical", 3, 3, 5, 3),
    Sketcher.Constraint("Vertical", 1, 3, 7, 3),
    Sketcher.Constraint("Vertical", 7, 3, 0, 2),
    Sketcher.Constraint("Vertical", 5, 3, 3, 1),
    Sketcher.Constraint("Equal", 6, 0),
    Sketcher.Constraint("Radius", 1, 8.0),
    Sketcher.Constraint("DistanceX", 2, 2, 2, 1, 36.0),
    Sketcher.Constraint("DistanceX", -1, 1, 1, 3, 56.0),
    Sketcher.Constraint("DistanceY", -1, 1, 1, 3, 56.0),
])
pocket4 = body.newObject("PartDesign::Pocket", "Pocket003")
pocket4.Profile = sketch12
pocket4.Length = 70
pocket4.Reversed = True

sketch13 = body.newObject("Sketcher::SketchObject", "Sketch012")
sketch13.AttachmentSupport = (doc.getObject("XY_Plane"), [""])
sketch13.MapMode = "FlatFace"
sketch13.addGeometry([
    Part.LineSegment(App.Vector(-46, 56, 0), App.Vector(-46, 60, 0)),
    Part.LineSegment(App.Vector(-46, 60, 0), App.Vector(-60, 60, 0)),
    Part.LineSegment(App.Vector(-60, 60, 0), App.Vector(-60, 46, 0)),
    Part.LineSegment(App.Vector(-60, 46, 0), App.Vector(-56, 46, 0)),
    Part.LineSegment(App.Vector(-56, 46, 0), App.Vector(-56, 56, 0)),
    Part.LineSegment(App.Vector(-56, 56, 0), App.Vector(-46, 56, 0)),
    Part.LineSegment(App.Vector(46, 60, 0), App.Vector(46, 56, 0)),
    Part.LineSegment(App.Vector(46, 56, 0), App.Vector(56, 56, 0)),
    Part.LineSegment(App.Vector(56, 56, 0), App.Vector(56, 46, 0)),
    Part.LineSegment(App.Vector(56, 46, 0), App.Vector(60, 46, 0)),
    Part.LineSegment(App.Vector(60, 46, 0), App.Vector(60, 60, 0)),
    Part.LineSegment(App.Vector(60, 60, 0), App.Vector(46, 60, 0)),
    Part.LineSegment(App.Vector(60, -46, 0), App.Vector(56, -46, 0)),
    Part.LineSegment(App.Vector(56, -46, 0), App.Vector(56, -56, 0)),
    Part.LineSegment(App.Vector(56, -56, 0), App.Vector(46, -56, 0)),
    Part.LineSegment(App.Vector(46, -56, 0), App.Vector(46, -60, 0)),
    Part.LineSegment(App.Vector(46, -60, 0), App.Vector(60, -60, 0)),
    Part.LineSegment(App.Vector(60, -60, 0), App.Vector(60, -46, 0)),
    Part.LineSegment(App.Vector(-56, -46, 0), App.Vector(-60, -46, 0)),
    Part.LineSegment(App.Vector(-60, -46, 0), App.Vector(-60, -60, 0)),
    Part.LineSegment(App.Vector(-60, -60, 0), App.Vector(-46, -60, 0)),
    Part.LineSegment(App.Vector(-46, -60, 0), App.Vector(-46, -56, 0)),
    Part.LineSegment(App.Vector(-46, -56, 0), App.Vector(-56, -56, 0)),
    Part.LineSegment(App.Vector(-56, -56, 0), App.Vector(-56, -46, 0)),
], False)
sketch13.addConstraint([
    Sketcher.Constraint("Coincident", 0, 2, 1, 1),
    Sketcher.Constraint("Coincident", 1, 2, 2, 1),
    Sketcher.Constraint("Coincident", 2, 2, 3, 1),
    Sketcher.Constraint("Coincident", 3, 2, 4, 1),
    Sketcher.Constraint("Coincident", 4, 2, 5, 1),
    Sketcher.Constraint("Coincident", 5, 2, 0, 1),
    Sketcher.Constraint("Coincident", 6, 2, 7, 1),
    Sketcher.Constraint("Coincident", 7, 2, 8, 1),
    Sketcher.Constraint("Coincident", 8, 2, 9, 1),
    Sketcher.Constraint("Coincident", 9, 2, 10, 1),
    Sketcher.Constraint("Coincident", 10, 2, 11, 1),
    Sketcher.Constraint("Coincident", 11, 2, 6, 1),
    Sketcher.Constraint("Coincident", 12, 2, 13, 1),
    Sketcher.Constraint("Coincident", 13, 2, 14, 1),
    Sketcher.Constraint("Coincident", 14, 2, 15, 1),
    Sketcher.Constraint("Coincident", 15, 2, 16, 1),
    Sketcher.Constraint("Coincident", 16, 2, 17, 1),
    Sketcher.Constraint("Coincident", 17, 2, 12, 1),
    Sketcher.Constraint("Coincident", 18, 2, 19, 1),
    Sketcher.Constraint("Coincident", 19, 2, 20, 1),
    Sketcher.Constraint("Coincident", 20, 2, 21, 1),
    Sketcher.Constraint("Coincident", 21, 2, 22, 1),
    Sketcher.Constraint("Coincident", 22, 2, 23, 1),
    Sketcher.Constraint("Coincident", 23, 2, 18, 1),
    Sketcher.Constraint("Vertical", 0),
    Sketcher.Constraint("Horizontal", 1),
    Sketcher.Constraint("Vertical", 2),
    Sketcher.Constraint("Horizontal", 3),
    Sketcher.Constraint("Vertical", 4),
    Sketcher.Constraint("Horizontal", 5),
    Sketcher.Constraint("Vertical", 6),
    Sketcher.Constraint("Horizontal", 7),
    Sketcher.Constraint("Vertical", 8),
    Sketcher.Constraint("Horizontal", 9),
    Sketcher.Constraint("Vertical", 10),
    Sketcher.Constraint("Horizontal", 11),
    Sketcher.Constraint("Horizontal", 12),
    Sketcher.Constraint("Vertical", 13),
    Sketcher.Constraint("Horizontal", 14),
    Sketcher.Constraint("Vertical", 15),
    Sketcher.Constraint("Horizontal", 16),
    Sketcher.Constraint("Vertical", 17),
    Sketcher.Constraint("Horizontal", 18),
    Sketcher.Constraint("Vertical", 19),
    Sketcher.Constraint("Horizontal", 20),
    Sketcher.Constraint("Vertical", 21),
    Sketcher.Constraint("Horizontal", 22),
    Sketcher.Constraint("Vertical", 23),
    Sketcher.Constraint("Symmetric", 3, 2, 12, 2, -1, 1),
    Sketcher.Constraint("Symmetric", 5, 2, 14, 2, -1, 1),
    Sketcher.Constraint("Symmetric", 1, 2, 16, 2, -1, 1),
    Sketcher.Constraint("Symmetric", 9, 2, 18, 2, -1, 1),
    Sketcher.Constraint("Symmetric", 11, 2, 20, 2, -1, 1),
    Sketcher.Constraint("Symmetric", 7, 2, 22, 2, -1, 1),
    Sketcher.Constraint("Symmetric", 5, 2, 6, 2, -2),
    Sketcher.Constraint("Symmetric", 3, 2, 8, 2, -2),
    Sketcher.Constraint("Symmetric", 1, 2, 10, 2, -2),
    Sketcher.Constraint("Equal", 18, 0),
    Sketcher.Constraint("Equal", 20, 2),
    Sketcher.Constraint("DistanceX", 1, 2, 1, 1, 14.0),
    Sketcher.Constraint("DistanceX", 3, 1, 3, 2, 4.0),
    Sketcher.Constraint("DistanceX", 0, 2, -1, 1, 46.0),
    Sketcher.Constraint("DistanceY", -1, 1, 0, 2, 60.0),
])
pad9 = body.newObject("PartDesign::Pad", "Pad008")
pad9.Profile = sketch13
pad9.Length = 4
pad9.Reversed = True
doc.recompute()

fillet = body.newObject("PartDesign::Fillet", "Fillet")
fillet.Base = (pad9, edges_at(pad9, [
    (-60, 60, 44),
    (-60, 0, 70),
    (-60, -60, 22),
    (60, -60, 33),
    (0, -60, 59),
    (60, 60, 55),
    (0, 60, 103),
    (0, 0, 103),
    (60, 0, 92),
    (-4, 56, 46),
    (-4, 4, 46),
    (-56, 56, 44),
    (-56, 4, 46),
    (-56, -4, 24),
    (-4, -4, 24),
    (-4, -56, 24),
    (-56, -56, 22),
    (4, -56, 35),
    (4, -4, 35),
    (56, -4, 35),
    (56, -56, 33),
    (56, 4, 57),
    (56, 56, 55),
    (4, 56, 57),
    (4, 4, 57),
]))
fillet.Radius = 5

doc.recompute()
